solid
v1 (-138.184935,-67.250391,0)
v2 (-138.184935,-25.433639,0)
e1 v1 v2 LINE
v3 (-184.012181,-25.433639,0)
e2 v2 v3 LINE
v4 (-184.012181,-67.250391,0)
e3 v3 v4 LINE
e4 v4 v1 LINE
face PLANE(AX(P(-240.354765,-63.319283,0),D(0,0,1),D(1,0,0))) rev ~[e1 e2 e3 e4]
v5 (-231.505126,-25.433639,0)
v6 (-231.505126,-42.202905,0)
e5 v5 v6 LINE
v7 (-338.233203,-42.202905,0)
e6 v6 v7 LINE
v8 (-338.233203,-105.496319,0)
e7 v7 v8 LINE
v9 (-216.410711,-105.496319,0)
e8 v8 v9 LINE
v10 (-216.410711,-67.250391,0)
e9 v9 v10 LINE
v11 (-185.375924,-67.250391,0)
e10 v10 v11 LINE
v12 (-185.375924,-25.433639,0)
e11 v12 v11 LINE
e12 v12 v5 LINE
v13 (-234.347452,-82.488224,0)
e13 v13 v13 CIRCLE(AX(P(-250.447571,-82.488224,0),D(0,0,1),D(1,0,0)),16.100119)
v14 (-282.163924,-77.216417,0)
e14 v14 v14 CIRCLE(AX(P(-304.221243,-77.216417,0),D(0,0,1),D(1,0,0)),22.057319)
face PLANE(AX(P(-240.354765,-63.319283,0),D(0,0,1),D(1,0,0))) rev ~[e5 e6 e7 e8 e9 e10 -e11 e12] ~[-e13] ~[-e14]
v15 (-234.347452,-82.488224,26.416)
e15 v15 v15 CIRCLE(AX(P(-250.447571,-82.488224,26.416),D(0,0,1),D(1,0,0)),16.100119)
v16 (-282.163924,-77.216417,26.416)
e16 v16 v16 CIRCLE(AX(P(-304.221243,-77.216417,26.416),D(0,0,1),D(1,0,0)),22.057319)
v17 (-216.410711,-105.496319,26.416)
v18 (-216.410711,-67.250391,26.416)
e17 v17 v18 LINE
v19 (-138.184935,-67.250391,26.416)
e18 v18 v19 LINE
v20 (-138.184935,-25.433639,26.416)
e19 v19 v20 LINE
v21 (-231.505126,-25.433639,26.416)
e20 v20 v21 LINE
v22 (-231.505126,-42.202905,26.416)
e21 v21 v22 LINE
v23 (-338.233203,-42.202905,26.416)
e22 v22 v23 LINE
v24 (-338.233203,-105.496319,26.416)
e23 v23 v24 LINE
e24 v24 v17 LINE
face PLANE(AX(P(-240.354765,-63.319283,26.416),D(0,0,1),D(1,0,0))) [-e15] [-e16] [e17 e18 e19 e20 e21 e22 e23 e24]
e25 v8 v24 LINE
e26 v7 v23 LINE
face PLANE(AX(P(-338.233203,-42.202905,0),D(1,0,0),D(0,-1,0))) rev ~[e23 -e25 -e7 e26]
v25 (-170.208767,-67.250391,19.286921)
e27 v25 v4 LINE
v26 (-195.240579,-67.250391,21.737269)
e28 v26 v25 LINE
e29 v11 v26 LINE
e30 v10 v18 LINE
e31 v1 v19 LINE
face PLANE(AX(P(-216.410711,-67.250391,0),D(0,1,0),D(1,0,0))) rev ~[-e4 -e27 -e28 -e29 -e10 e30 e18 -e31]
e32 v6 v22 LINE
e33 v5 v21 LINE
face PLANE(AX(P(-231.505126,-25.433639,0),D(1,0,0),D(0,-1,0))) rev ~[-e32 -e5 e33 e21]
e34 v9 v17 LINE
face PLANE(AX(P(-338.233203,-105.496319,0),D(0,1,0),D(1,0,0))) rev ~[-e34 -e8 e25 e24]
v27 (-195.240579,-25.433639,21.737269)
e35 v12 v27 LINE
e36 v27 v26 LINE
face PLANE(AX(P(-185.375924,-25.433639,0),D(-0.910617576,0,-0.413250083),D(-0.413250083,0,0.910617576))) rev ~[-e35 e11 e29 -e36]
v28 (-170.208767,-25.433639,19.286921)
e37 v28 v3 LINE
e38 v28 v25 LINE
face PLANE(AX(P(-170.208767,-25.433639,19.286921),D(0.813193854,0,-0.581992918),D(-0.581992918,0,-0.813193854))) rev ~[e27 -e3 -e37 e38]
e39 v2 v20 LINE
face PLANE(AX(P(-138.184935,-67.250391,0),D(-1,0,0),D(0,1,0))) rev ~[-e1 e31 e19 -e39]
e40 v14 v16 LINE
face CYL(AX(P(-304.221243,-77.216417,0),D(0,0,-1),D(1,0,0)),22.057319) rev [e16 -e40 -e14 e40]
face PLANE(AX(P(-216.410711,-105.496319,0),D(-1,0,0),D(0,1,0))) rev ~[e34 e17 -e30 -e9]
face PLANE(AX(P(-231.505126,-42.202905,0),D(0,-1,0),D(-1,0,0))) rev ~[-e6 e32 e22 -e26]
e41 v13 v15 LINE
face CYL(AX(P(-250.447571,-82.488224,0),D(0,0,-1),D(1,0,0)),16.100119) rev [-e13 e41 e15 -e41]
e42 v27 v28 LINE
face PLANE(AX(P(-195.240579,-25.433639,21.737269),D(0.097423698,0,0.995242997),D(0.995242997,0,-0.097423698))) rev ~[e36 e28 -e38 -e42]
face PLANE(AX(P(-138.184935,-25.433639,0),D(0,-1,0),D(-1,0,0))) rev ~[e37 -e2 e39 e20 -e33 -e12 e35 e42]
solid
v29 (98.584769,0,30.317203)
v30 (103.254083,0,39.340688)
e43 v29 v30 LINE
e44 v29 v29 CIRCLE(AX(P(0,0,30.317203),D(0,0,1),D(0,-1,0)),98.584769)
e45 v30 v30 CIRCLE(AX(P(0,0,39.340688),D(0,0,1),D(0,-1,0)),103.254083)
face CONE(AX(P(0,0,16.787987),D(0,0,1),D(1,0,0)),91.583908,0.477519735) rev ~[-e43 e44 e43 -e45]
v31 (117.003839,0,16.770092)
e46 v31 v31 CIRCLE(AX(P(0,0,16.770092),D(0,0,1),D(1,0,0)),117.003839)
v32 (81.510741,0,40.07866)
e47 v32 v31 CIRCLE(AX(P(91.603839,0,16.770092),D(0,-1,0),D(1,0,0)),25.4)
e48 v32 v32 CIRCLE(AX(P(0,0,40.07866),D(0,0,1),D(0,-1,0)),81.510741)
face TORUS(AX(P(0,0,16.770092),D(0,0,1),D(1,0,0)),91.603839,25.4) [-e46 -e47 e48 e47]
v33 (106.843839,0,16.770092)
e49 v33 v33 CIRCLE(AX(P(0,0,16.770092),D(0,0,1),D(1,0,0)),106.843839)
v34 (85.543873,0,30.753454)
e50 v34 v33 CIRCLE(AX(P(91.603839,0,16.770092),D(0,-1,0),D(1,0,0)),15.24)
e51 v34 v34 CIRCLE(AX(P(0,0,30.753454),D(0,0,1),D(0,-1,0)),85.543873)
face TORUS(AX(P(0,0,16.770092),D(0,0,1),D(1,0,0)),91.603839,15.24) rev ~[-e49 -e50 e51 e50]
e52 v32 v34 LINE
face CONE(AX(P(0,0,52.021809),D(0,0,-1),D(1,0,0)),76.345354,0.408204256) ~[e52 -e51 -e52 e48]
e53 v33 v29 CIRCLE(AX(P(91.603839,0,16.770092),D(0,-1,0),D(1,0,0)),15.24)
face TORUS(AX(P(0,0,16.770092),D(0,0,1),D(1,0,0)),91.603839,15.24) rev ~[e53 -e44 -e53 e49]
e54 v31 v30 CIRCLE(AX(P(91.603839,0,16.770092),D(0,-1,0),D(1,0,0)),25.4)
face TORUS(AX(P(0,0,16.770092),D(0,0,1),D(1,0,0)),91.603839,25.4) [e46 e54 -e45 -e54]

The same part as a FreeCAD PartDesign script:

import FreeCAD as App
import Part
import Sketcher

V = App.Vector
Q = App.Units.Quantity


def add_polygon(sketch, points):
    """Adds a closed chain of lines whose ends are joined by coincident constraints."""
    first, n = sketch.GeometryCount, len(points)
    for a, b in zip(points, points[1:] + points[:1]):
        sketch.addGeometry(Part.LineSegment(App.Vector(*a, 0), App.Vector(*b, 0)), False)
    for i in range(n):
        sketch.addConstraint(Sketcher.Constraint("Coincident", first + i, 2, first + (i + 1) % n, 1))

doc = App.newDocument("Part")
params = doc.addObject("Spreadsheet::Sheet", "Params")
for row, (alias, value) in enumerate([
    ("sketch1_diameter", "2 in"),
    ("sketch1_diameter2", "1.2 in"),
    ("revolution_angle", "360 deg"),
    ("groove_angle", "360 deg"),
    ("pad1_length", "1.04 in"),
], start=1):
    params.set(f"A{row}", alias)
    params.set(f"B{row}", "=" + value)
    params.setAlias(f"B{row}", alias)

body = doc.addObject("PartDesign::Body", "Body")

sketch1 = doc.addObject("Sketcher::SketchObject", "Sketch")
body.addObject(sketch1)
sketch1.AttachmentSupport = (doc.XZ_Plane, [""])
sketch1.MapMode = "FlatFace"
sketch1.addGeometry(Part.Circle(V(92, 17, 0), V(0, 0, 1), 25), False)
sketch1.addGeometry(Part.Circle(V(92, 17, 0), V(0, 0, 1), 15), False)
sketch1.addConstraint(Sketcher.Constraint("Coincident", 1, 3, 0, 3))
sketch1.addConstraint(Sketcher.Constraint("Diameter", 0, Q("2 in")))
sketch1.addConstraint(Sketcher.Constraint("Diameter", 1, Q("1.2 in")))
sketch1.addConstraint(Sketcher.Constraint("DistanceX", -1, 1, 0, 3, 91.603839))
sketch1.addConstraint(Sketcher.Constraint("DistanceY", -1, 1, 0, 3, 16.770092))
sketch1.setExpression("Constraints[1]", "Params.sketch1_diameter")
sketch1.setExpression("Constraints[2]", "Params.sketch1_diameter2")
revolution = doc.addObject("PartDesign::Revolution", "Revolution")
body.addObject(revolution)
revolution.Profile = sketch1
revolution.ReferenceAxis = (sketch1, ["V_Axis"])
revolution.setExpression("Angle", "Params.revolution_angle")

sketch2 = doc.addObject("Sketcher::SketchObject", "Sketch001")
body.addObject(sketch2)
sketch2.AttachmentSupport = (doc.XZ_Plane, [""])
sketch2.MapMode = "FlatFace"
add_polygon(sketch2, [(110, 52), (76, 52), (92, 17)])
sketch2.addConstraint(Sketcher.Constraint("Horizontal", 0))
sketch2.addConstraint(Sketcher.Constraint("DistanceX", 0, 2, 0, 1, 33.470732))
sketch2.addConstraint(Sketcher.Constraint("DistanceY", -1, 1, 0, 2, 52.021809))
sketch2.addConstraint(Sketcher.Constraint("DistanceY", 1, 2, 0, 2, 35.233822))
sketch2.addConstraint(Sketcher.Constraint("DistanceX", 1, 2, 2, 2, 18.232178))
sketch2.addConstraint(Sketcher.Constraint("DistanceX", -1, 1, 0, 2, 76.345354))
groove = doc.addObject("PartDesign::Groove", "Groove")
body.addObject(groove)
groove.Profile = sketch2
groove.ReferenceAxis = (sketch2, ["V_Axis"])
groove.setExpression("Angle", "Params.groove_angle")
body2 = doc.addObject("PartDesign::Body", "Body001")

sketch3 = doc.addObject("Sketcher::SketchObject", "Sketch002")
body2.addObject(sketch3)
sketch3.AttachmentSupport = (doc.getObject("XY_Plane001"), [""])
sketch3.MapMode = "FlatFace"
add_polygon(sketch3, [(-232, -42), (-338, -42), (-338, -105), (-216, -105), (-216, -67), (-138, -67), (-138, -25), (-232, -25)])
sketch3.addGeometry(Part.Circle(V(-250, -82, 0), V(0, 0, 1), 16), False)
sketch3.addGeometry(Part.Circle(V(-304, -77, 0), V(0, 0, 1), 22), False)
sketch3.addConstraint(Sketcher.Constraint("Horizontal", 0))
sketch3.addConstraint(Sketcher.Constraint("Vertical", 1))
sketch3.addConstraint(Sketcher.Constraint("Horizontal", 2))
sketch3.addConstraint(Sketcher.Constraint("Vertical", 3))
sketch3.addConstraint(Sketcher.Constraint("Horizontal", 4))
sketch3.addConstraint(Sketcher.Constraint("Vertical", 5))
sketch3.addConstraint(Sketcher.Constraint("Horizontal", 6))
sketch3.addConstraint(Sketcher.Constraint("Vertical", 7))
sketch3.addConstraint(Sketcher.Constraint("Diameter", 8, 32.200238))
sketch3.addConstraint(Sketcher.Constraint("Diameter", 9, 44.114638))
sketch3.addConstraint(Sketcher.Constraint("DistanceX", 6, 2, 6, 1, 93.320191))
sketch3.addConstraint(Sketcher.Constraint("DistanceY", 3, 1, 3, 2, 38.245928))
sketch3.addConstraint(Sketcher.Constraint("DistanceY", 5, 1, 5, 2, 41.816752))
sketch3.addConstraint(Sketcher.Constraint("DistanceY", 1, 2, 9, 3, 28.279902))
sketch3.addConstraint(Sketcher.Constraint("DistanceX", 0, 2, 0, 1, 106.728077))
sketch3.addConstraint(Sketcher.Constraint("DistanceX", 2, 1, 2, 2, 121.822492))
sketch3.addConstraint(Sketcher.Constraint("DistanceY", 1, 2, 1, 1, 63.293414))
sketch3.addConstraint(Sketcher.Constraint("DistanceX", 8, 3, -1, 1, 250.447571))
sketch3.addConstraint(Sketcher.Constraint("DistanceY", 1, 2, -1, 1, 105.496319))
sketch3.addConstraint(Sketcher.Constraint("DistanceX", 2, 2, -1, 1, 216.410711))
sketch3.addConstraint(Sketcher.Constraint("DistanceX", 0, 2, 9, 3, 34.01196))
sketch3.addConstraint(Sketcher.Constraint("DistanceY", 8, 3, 0, 2, 40.285319))
pad1 = doc.addObject("PartDesign::Pad", "Pad")
body2.addObject(pad1)
pad1.Profile = sketch3
pad1.setExpression("Length", "Params.pad1_length")

sketch4 = doc.addObject("Sketcher::SketchObject", "Sketch003")
body2.addObject(sketch4)
sketch4.AttachmentSupport = (doc.getObject("XZ_Plane001"), [""])
sketch4.MapMode = "FlatFace"
sketch4.AttachmentOffset = App.Placement(V(0, 0, 25.433639), App.Rotation())
add_polygon(sketch4, [(-185.4, 0), (-195.2, 21.7), (-170.2, 19.3), (-184, 0)])
sketch4.addConstraint(Sketcher.Constraint("Horizontal", 3))
sketch4.addConstraint(Sketcher.Constraint("PointOnObject", 2, 2, -1))
sketch4.addConstraint(Sketcher.Constraint("Distance", 0, 23.870909))
sketch4.addConstraint(Sketcher.Constraint("DistanceX", 3, 2, 3, 1, 1.363743))
sketch4.addConstraint(Sketcher.Constraint("DistanceX", 0, 2, -1, 1, 195.240579))
sketch4.addConstraint(Sketcher.Constraint("DistanceY", -1, 1, 0, 2, 21.737269))
sketch4.addConstraint(Sketcher.Constraint("DistanceY", -1, 1, 1, 2, 19.286921))
sketch4.addConstraint(Sketcher.Constraint("Distance", 1, 25.151458))
pocket1 = doc.addObject("PartDesign::Pocket", "Pocket")
body2.addObject(pocket1)
pocket1.Profile = sketch4
pocket1.Type = "ThroughAll"
pocket1.Reversed = True

doc.recompute()
